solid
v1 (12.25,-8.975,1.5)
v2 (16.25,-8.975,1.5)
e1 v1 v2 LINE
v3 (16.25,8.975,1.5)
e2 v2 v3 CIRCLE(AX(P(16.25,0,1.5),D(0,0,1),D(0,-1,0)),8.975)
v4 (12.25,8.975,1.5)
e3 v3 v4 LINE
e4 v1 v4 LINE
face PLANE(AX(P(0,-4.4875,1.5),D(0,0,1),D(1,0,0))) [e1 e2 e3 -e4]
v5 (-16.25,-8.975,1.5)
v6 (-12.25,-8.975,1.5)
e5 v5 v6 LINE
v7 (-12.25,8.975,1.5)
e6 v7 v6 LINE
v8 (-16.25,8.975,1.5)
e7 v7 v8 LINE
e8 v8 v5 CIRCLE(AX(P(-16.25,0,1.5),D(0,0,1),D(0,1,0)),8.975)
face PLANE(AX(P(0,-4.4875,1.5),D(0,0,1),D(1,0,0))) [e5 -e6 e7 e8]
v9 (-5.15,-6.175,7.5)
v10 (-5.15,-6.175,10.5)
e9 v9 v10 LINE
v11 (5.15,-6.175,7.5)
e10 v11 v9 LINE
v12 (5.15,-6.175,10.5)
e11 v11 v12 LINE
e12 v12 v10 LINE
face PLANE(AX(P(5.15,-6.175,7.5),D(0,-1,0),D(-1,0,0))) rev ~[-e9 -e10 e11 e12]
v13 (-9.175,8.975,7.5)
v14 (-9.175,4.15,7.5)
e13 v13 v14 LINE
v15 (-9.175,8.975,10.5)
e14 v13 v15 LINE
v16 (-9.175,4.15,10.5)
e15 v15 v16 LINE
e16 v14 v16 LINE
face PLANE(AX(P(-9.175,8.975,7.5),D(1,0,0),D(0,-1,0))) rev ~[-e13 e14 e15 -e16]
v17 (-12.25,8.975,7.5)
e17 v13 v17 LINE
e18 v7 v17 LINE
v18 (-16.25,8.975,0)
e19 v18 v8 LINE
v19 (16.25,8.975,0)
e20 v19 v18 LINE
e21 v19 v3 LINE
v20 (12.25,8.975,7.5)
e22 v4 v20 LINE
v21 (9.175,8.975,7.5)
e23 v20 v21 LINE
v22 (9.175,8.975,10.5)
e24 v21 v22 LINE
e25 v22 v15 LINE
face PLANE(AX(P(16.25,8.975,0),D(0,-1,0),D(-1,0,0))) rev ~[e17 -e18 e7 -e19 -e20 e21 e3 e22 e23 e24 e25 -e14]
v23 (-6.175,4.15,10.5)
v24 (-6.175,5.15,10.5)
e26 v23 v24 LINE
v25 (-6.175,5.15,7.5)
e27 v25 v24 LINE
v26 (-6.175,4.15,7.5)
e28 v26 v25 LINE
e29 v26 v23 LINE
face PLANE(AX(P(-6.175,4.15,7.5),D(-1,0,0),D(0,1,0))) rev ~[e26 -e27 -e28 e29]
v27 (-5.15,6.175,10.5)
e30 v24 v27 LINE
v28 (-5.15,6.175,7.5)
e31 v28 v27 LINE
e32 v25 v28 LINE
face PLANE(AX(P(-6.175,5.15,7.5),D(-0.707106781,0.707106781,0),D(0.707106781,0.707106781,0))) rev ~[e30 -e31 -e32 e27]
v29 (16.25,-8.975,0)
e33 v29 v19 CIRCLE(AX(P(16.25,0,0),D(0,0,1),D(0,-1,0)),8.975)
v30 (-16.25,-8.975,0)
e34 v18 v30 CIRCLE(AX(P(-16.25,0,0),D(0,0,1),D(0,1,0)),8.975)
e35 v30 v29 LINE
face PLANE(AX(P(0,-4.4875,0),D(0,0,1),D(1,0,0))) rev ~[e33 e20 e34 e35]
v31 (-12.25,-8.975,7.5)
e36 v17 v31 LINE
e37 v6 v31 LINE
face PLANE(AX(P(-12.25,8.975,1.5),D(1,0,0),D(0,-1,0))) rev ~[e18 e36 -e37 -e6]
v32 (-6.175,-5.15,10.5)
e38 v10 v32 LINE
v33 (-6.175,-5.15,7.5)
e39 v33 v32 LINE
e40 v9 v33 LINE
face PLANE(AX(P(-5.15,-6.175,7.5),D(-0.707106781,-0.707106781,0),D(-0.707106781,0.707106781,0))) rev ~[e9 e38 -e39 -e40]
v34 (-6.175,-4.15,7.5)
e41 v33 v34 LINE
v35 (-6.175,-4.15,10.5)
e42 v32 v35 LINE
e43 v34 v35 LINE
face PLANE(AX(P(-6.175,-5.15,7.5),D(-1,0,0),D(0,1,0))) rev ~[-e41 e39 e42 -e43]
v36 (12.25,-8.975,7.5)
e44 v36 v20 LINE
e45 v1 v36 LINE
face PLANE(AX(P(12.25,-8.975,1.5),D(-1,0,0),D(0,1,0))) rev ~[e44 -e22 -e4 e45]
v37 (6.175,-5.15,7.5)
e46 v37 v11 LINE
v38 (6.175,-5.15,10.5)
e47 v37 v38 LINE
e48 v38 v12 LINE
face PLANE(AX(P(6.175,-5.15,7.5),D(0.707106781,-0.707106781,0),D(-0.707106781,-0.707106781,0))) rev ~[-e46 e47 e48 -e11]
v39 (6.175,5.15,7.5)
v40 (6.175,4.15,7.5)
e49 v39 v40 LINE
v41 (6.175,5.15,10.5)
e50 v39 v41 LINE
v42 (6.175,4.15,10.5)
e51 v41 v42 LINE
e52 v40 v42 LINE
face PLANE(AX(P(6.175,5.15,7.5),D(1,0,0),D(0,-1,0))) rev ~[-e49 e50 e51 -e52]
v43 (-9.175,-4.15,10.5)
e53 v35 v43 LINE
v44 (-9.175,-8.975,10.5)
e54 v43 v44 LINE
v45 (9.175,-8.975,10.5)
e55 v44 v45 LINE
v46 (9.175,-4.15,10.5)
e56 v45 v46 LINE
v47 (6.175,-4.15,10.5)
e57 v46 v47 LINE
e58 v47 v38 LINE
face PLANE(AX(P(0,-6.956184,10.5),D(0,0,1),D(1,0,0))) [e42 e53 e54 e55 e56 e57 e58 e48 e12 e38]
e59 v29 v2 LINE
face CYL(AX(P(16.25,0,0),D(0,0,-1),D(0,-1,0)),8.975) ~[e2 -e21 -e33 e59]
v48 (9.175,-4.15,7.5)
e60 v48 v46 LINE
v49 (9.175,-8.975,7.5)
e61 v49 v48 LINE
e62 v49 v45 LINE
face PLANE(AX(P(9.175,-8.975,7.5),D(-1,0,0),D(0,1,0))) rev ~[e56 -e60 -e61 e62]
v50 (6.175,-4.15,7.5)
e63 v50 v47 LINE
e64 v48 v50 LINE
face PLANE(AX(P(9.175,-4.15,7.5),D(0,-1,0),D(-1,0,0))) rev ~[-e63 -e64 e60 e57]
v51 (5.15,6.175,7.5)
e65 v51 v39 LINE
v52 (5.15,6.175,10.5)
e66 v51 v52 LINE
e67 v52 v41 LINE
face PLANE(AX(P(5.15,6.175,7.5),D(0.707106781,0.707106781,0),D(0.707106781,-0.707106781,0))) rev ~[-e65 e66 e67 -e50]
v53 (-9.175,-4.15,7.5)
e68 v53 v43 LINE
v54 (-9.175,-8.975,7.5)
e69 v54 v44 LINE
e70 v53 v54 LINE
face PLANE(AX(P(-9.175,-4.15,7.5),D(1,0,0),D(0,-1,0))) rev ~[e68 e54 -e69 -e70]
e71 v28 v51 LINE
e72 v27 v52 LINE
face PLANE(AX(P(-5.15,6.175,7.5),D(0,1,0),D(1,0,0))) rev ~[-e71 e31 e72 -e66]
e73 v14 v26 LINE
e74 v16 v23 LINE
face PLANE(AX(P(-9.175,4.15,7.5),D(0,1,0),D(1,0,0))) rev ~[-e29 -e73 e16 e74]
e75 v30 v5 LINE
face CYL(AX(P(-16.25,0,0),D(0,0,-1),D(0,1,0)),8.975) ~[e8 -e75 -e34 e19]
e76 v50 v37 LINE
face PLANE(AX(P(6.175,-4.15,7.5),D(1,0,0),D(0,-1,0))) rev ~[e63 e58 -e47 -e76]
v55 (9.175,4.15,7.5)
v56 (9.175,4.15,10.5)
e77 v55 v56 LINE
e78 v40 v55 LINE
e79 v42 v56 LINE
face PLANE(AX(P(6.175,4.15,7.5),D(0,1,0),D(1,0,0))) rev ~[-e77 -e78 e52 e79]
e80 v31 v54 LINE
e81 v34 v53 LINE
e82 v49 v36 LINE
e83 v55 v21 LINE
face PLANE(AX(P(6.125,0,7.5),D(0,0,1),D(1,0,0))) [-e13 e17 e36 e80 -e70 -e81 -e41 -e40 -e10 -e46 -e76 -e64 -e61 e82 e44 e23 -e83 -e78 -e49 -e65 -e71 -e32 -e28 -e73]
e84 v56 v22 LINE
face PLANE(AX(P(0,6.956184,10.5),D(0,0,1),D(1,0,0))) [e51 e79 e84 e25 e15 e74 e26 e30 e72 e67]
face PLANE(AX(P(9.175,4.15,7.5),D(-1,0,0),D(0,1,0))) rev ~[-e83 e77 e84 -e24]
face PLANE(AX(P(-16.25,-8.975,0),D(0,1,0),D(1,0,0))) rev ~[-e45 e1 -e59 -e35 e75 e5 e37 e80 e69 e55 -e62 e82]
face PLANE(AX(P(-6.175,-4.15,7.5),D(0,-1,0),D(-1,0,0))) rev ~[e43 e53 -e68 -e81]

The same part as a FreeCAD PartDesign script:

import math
import FreeCAD as App
import Part
import Sketcher
from FreeCAD import Vector

doc = App.newDocument("Part")
body = doc.addObject("PartDesign::Body", "Body")

sketch1 = body.newObject("Sketcher::SketchObject", "Sketch")
sketch1.AttachmentSupport = (doc.getObject("XY_Plane"), [""])
sketch1.MapMode = "FlatFace"
sketch1.addGeometry([
    Part.LineSegment(Vector(-16.25, -8.975, 0), Vector(16.25, -8.975, 0)),
    Part.ArcOfCircle(Part.Circle(Vector(16.25, 0, 0), Vector(0, 0, 1), 8.975), math.radians(-90), math.radians(90)),
    Part.LineSegment(Vector(16.25, 8.975, 0), Vector(-16.25, 8.975, 0)),
    Part.ArcOfCircle(Part.Circle(Vector(-16.25, 0, 0), Vector(0, 0, 1), 8.975), math.radians(90), math.radians(270)),
], False)
sketch1.addConstraint([
    Sketcher.Constraint("Tangent", 0, 2, 1, 1),
    Sketcher.Constraint("Tangent", 1, 2, 2, 1),
    Sketcher.Constraint("Tangent", 2, 2, 3, 1),
    Sketcher.Constraint("Tangent", 3, 2, 0, 1),
    Sketcher.Constraint("Horizontal", 0),
    Sketcher.Constraint("Horizontal", 2),
    Sketcher.Constraint("Symmetric", 1, 3, 3, 3, -1, 1),
    Sketcher.Constraint("DistanceX", 0, 1, 0, 2, 32.5),
    Sketcher.Constraint("Radius", 1, 8.975),
])
pad1 = body.newObject("PartDesign::Pad", "Pad")
pad1.Profile = sketch1
pad1.Length = 1.5

sketch2 = body.newObject("Sketcher::SketchObject", "Sketch001")
sketch2.AttachmentSupport = (doc.getObject("XY_Plane"), [""])
sketch2.MapMode = "FlatFace"
sketch2.AttachmentOffset = App.Placement(Vector(0, 0, 1.5), App.Rotation())
sketch2.addGeometry([
    Part.LineSegment(Vector(12.25, -8.975, 0), Vector(12.25, 8.975, 0)),
    Part.LineSegment(Vector(12.25, 8.975, 0), Vector(-12.25, 8.975, 0)),
    Part.LineSegment(Vector(-12.25, 8.975, 0), Vector(-12.25, -8.975, 0)),
    Part.LineSegment(Vector(-12.25, -8.975, 0), Vector(12.25, -8.975, 0)),
], False)
sketch2.addConstraint([
    Sketcher.Constraint("Coincident", 0, 2, 1, 1),
    Sketcher.Constraint("Coincident", 1, 2, 2, 1),
    Sketcher.Constraint("Coincident", 2, 2, 3, 1),
    Sketcher.Constraint("Coincident", 3, 2, 0, 1),
    Sketcher.Constraint("Vertical", 0),
    Sketcher.Constraint("Horizontal", 1),
    Sketcher.Constraint("Vertical", 2),
    Sketcher.Constraint("Horizontal", 3),
    Sketcher.Constraint("Symmetric", 0, 2, 2, 2, -1, 1),
    Sketcher.Constraint("DistanceX", 1, 2, 1, 1, 24.5),
    Sketcher.Constraint("DistanceY", 0, 1, 0, 2, 17.95),
])
pad2 = body.newObject("PartDesign::Pad", "Pad001")
pad2.Profile = sketch2
pad2.Length = 6

sketch3 = body.newObject("Sketcher::SketchObject", "Sketch002")
sketch3.AttachmentSupport = (doc.getObject("XY_Plane"), [""])
sketch3.MapMode = "FlatFace"
sketch3.AttachmentOffset = App.Placement(Vector(0, 0, 7.5), App.Rotation())
sketch3.addGeometry([
    Part.LineSegment(Vector(5.15, -6.175, 0), Vector(-5.15, -6.175, 0)),
    Part.LineSegment(Vector(-5.15, -6.175, 0), Vector(-6.175, -5.15, 0)),
    Part.LineSegment(Vector(-6.175, -5.15, 0), Vector(-6.175, -4.15, 0)),
    Part.LineSegment(Vector(-6.175, -4.15, 0), Vector(-9.175, -4.15, 0)),
    Part.LineSegment(Vector(-9.175, -4.15, 0), Vector(-9.175, -8.975, 0)),
    Part.LineSegment(Vector(-9.175, -8.975, 0), Vector(9.175, -8.975, 0)),
    Part.LineSegment(Vector(9.175, -8.975, 0), Vector(9.175, -4.15, 0)),
    Part.LineSegment(Vector(9.175, -4.15, 0), Vector(6.175, -4.15, 0)),
    Part.LineSegment(Vector(6.175, -4.15, 0), Vector(6.175, -5.15, 0)),
    Part.LineSegment(Vector(6.175, -5.15, 0), Vector(5.15, -6.175, 0)),
    Part.LineSegment(Vector(-5.15, 6.175, 0), Vector(5.15, 6.175, 0)),
    Part.LineSegment(Vector(5.15, 6.175, 0), Vector(6.175, 5.15, 0)),
    Part.LineSegment(Vector(6.175, 5.15, 0), Vector(6.175, 4.15, 0)),
    Part.LineSegment(Vector(6.175, 4.15, 0), Vector(9.175, 4.15, 0)),
    Part.LineSegment(Vector(9.175, 4.15, 0), Vector(9.175, 8.975, 0)),
    Part.LineSegment(Vector(9.175, 8.975, 0), Vector(-9.175, 8.975, 0)),
    Part.LineSegment(Vector(-9.175, 8.975, 0), Vector(-9.175, 4.15, 0)),
    Part.LineSegment(Vector(-9.175, 4.15, 0), Vector(-6.175, 4.15, 0)),
    Part.LineSegment(Vector(-6.175, 4.15, 0), Vector(-6.175, 5.15, 0)),
    Part.LineSegment(Vector(-6.175, 5.15, 0), Vector(-5.15, 6.175, 0)),
], False)
sketch3.addConstraint([
    Sketcher.Constraint("Coincident", 0, 2, 1, 1),
    Sketcher.Constraint("Coincident", 1, 2, 2, 1),
    Sketcher.Constraint("Coincident", 2, 2, 3, 1),
    Sketcher.Constraint("Coincident", 3, 2, 4, 1),
    Sketcher.Constraint("Coincident", 4, 2, 5, 1),
    Sketcher.Constraint("Coincident", 5, 2, 6, 1),
    Sketcher.Constraint("Coincident", 6, 2, 7, 1),
    Sketcher.Constraint("Coincident", 7, 2, 8, 1),
    Sketcher.Constraint("Coincident", 8, 2, 9, 1),
    Sketcher.Constraint("Coincident", 9, 2, 0, 1),
    Sketcher.Constraint("Coincident", 10, 2, 11, 1),
    Sketcher.Constraint("Coincident", 11, 2, 12, 1),
    Sketcher.Constraint("Coincident", 12, 2, 13, 1),
    Sketcher.Constraint("Coincident", 13, 2, 14, 1),
    Sketcher.Constraint("Coincident", 14, 2, 15, 1),
    Sketcher.Constraint("Coincident", 15, 2, 16, 1),
    Sketcher.Constraint("Coincident", 16, 2, 17, 1),
    Sketcher.Constraint("Coincident", 17, 2, 18, 1),
    Sketcher.Constraint("Coincident", 18, 2, 19, 1),
    Sketcher.Constraint("Coincident", 19, 2, 10, 1),
    Sketcher.Constraint("Horizontal", 0),
    Sketcher.Constraint("Vertical", 2),
    Sketcher.Constraint("Horizontal", 3),
    Sketcher.Constraint("Vertical", 4),
    Sketcher.Constraint("Horizontal", 5),
    Sketcher.Constraint("Vertical", 6),
    Sketcher.Constraint("Horizontal", 7),
    Sketcher.Constraint("Vertical", 8),
    Sketcher.Constraint("Horizontal", 10),
    Sketcher.Constraint("Vertical", 12),
    Sketcher.Constraint("Horizontal", 13),
    Sketcher.Constraint("Vertical", 14),
    Sketcher.Constraint("Horizontal", 15),
    Sketcher.Constraint("Vertical", 16),
    Sketcher.Constraint("Horizontal", 17),
    Sketcher.Constraint("Vertical", 18),
    Sketcher.Constraint("Symmetric", 0, 2, 10, 2, -1, 1),
    Sketcher.Constraint("Symmetric", 1, 2, 11, 2, -1, 1),
    Sketcher.Constraint("Symmetric", 3, 2, 13, 2, -1, 1),
    Sketcher.Constraint("Symmetric", 5, 2, 15, 2, -1, 1),
    Sketcher.Constraint("Symmetric", 7, 2, 17, 2, -1, 1),
    Sketcher.Constraint("Symmetric", 3, 2, 6, 2, -2),
    Sketcher.Constraint("Symmetric", 1, 2, 8, 2, -2),
    Sketcher.Constraint("Perpendicular", 1, 9),
    Sketcher.Constraint("Perpendicular", 11, 19),
    Sketcher.Constraint("Horizontal", 11, 2, 18, 2),
    Sketcher.Constraint("Vertical", 9, 2, 10, 2),
    Sketcher.Constraint("DistanceX", 3, 2, 3, 1, 3.0),
    Sketcher.Constraint("DistanceY", 2, 1, 2, 2, 1.0),
    Sketcher.Constraint("DistanceX", 0, 2, 0, 1, 10.3),
    Sketcher.Constraint("DistanceX", 5, 1, 5, 2, 18.35),
    Sketcher.Constraint("DistanceY", 4, 2, 0, 2, 2.8),
    Sketcher.Constraint("DistanceY", 7, 2, 11, 2, 9.3),
])
pad3 = body.newObject("PartDesign::Pad", "Pad002")
pad3.Profile = sketch3
pad3.Length = 3

doc.recompute()
